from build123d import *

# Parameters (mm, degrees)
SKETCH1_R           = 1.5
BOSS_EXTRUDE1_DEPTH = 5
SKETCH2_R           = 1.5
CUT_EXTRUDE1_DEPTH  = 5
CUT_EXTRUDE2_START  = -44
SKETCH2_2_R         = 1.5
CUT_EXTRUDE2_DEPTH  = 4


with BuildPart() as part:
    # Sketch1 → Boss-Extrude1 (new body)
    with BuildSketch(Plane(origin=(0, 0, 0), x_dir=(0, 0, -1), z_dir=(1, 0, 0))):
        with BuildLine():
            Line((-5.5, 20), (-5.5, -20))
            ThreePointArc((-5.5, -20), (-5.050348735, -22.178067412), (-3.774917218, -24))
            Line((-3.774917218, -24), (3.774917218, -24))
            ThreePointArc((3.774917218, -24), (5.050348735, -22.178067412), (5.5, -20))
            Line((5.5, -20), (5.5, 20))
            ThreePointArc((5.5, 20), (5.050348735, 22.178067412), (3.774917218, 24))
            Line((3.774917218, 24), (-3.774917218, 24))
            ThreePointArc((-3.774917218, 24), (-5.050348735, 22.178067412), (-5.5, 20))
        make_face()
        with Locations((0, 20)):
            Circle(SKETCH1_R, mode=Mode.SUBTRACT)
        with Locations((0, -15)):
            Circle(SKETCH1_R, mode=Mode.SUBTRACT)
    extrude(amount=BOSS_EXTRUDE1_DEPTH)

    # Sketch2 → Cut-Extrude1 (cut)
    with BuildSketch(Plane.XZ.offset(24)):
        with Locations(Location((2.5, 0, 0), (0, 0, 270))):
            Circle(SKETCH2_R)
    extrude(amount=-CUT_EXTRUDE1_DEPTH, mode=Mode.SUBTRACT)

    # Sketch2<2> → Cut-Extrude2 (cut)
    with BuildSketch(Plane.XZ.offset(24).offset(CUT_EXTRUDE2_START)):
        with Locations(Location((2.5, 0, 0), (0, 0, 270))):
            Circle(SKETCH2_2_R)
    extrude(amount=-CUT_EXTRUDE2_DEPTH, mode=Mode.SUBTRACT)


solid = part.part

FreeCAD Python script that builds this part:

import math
import FreeCAD as App
import Part
import Sketcher

doc = App.newDocument("Part")
body = doc.addObject("PartDesign::Body", "Body")

# Sketch on YZ plane
sketch1 = doc.addObject("Sketcher::SketchObject", "Sketch")
body.addObject(sketch1)
sketch1.AttachmentSupport = (doc.YZ_Plane, [""])
sketch1.MapMode = "FlatFace"
sketch1.addGeometry([
    Part.LineSegment(App.Vector(20, 5.5, 0), App.Vector(-20, 5.5, 0)),  # 0
    Part.ArcOfCircle(Part.Circle(App.Vector(-20, 0, 0), App.Vector(0, 0, 1), 5.5), math.radians(90), math.radians(137)),  # 1
    Part.LineSegment(App.Vector(-24, 3.8, 0), App.Vector(-24, -3.8, 0)),  # 2
    Part.ArcOfCircle(Part.Circle(App.Vector(-20, 0, 0), App.Vector(0, 0, 1), 5.5), math.radians(-137), math.radians(-90)),  # 3
    Part.LineSegment(App.Vector(-20, -5.5, 0), App.Vector(20, -5.5, 0)),  # 4
    Part.ArcOfCircle(Part.Circle(App.Vector(20, 0, 0), App.Vector(0, 0, 1), 5.5), math.radians(-90), math.radians(-43)),  # 5
    Part.LineSegment(App.Vector(24, -3.8, 0), App.Vector(24, 3.8, 0)),  # 6
    Part.ArcOfCircle(Part.Circle(App.Vector(20, 0, 0), App.Vector(0, 0, 1), 5.5), math.radians(43), math.radians(90)),  # 7
    Part.Circle(App.Vector(-15, 0, 0), App.Vector(0, 0, 1), 1.5),  # 8
    Part.Circle(App.Vector(20, 0, 0), App.Vector(0, 0, 1), 1.5),  # 9
], False)
sketch1.addConstraint([
    Sketcher.Constraint("Tangent", 0, 2, 1, 1),
    Sketcher.Constraint("Coincident", 1, 2, 2, 1),
    Sketcher.Constraint("Coincident", 2, 2, 3, 1),
    Sketcher.Constraint("Tangent", 3, 2, 4, 1),
    Sketcher.Constraint("Tangent", 4, 2, 5, 1),
    Sketcher.Constraint("Coincident", 5, 2, 6, 1),
    Sketcher.Constraint("Coincident", 6, 2, 7, 1),
    Sketcher.Constraint("Tangent", 7, 2, 0, 1),
    Sketcher.Constraint("Horizontal", 0),
    Sketcher.Constraint("Vertical", 2),
    Sketcher.Constraint("Horizontal", 4),
    Sketcher.Constraint("Vertical", 6),
    Sketcher.Constraint("Coincident", 3, 3, 1, 3),
    Sketcher.Constraint("Coincident", 7, 3, 5, 3),
    Sketcher.Constraint("Coincident", 9, 3, 5, 3),
    Sketcher.Constraint("Equal", 1, 3),
    Sketcher.Constraint("Equal", 3, 5),
    Sketcher.Constraint("Equal", 8, 9),
    Sketcher.Constraint("Symmetric", 1, 3, 5, 3, -1, 1),
    Sketcher.Constraint("PointOnObject", 8, 3, -1),
    Sketcher.Constraint("Horizontal", 2, 2, 5, 2),
    Sketcher.Constraint("Diameter", 8, 3.0),
    Sketcher.Constraint("Radius", 1, 5.5),
    Sketcher.Constraint("DistanceX", 0, 2, 0, 1, 40.0),
    Sketcher.Constraint("DistanceX", 8, 3, -1, 1, 15.0),
    Sketcher.Constraint("DistanceX", 1, 2, -1, 1, 24.0),
])
pad1 = doc.addObject("PartDesign::Pad", "Pad")
body.addObject(pad1)
pad1.Profile = sketch1
pad1.Length = 5

# Sketch on XZ plane
sketch2 = doc.addObject("Sketcher::SketchObject", "Sketch001")
body.addObject(sketch2)
sketch2.AttachmentSupport = (doc.XZ_Plane, [""])
sketch2.MapMode = "FlatFace"
sketch2.AttachmentOffset = App.Placement(App.Vector(0, 0, 24), App.Rotation())
sketch2.addGeometry(Part.Circle(App.Vector(2.5, 0, 0), App.Vector(0, 0, 1), 1.5), False)
sketch2.addConstraint([
    Sketcher.Constraint("PointOnObject", 0, 3, -1),
    Sketcher.Constraint("Diameter", 0, 3.0),
    Sketcher.Constraint("DistanceX", -1, 1, 0, 3, 2.5),
])
pocket1 = doc.addObject("PartDesign::Pocket", "Pocket")
body.addObject(pocket1)
pocket1.Profile = sketch2
pocket1.Length = 5

# Sketch on XZ plane
sketch3 = doc.addObject("Sketcher::SketchObject", "Sketch002")
body.addObject(sketch3)
sketch3.AttachmentSupport = (doc.XZ_Plane, [""])
sketch3.MapMode = "FlatFace"
sketch3.AttachmentOffset = App.Placement(App.Vector(0, 0, -20), App.Rotation())
sketch3.addGeometry(Part.Circle(App.Vector(2.5, 0, 0), App.Vector(0, 0, 1), 1.5), False)
sketch3.addConstraint([
    Sketcher.Constraint("PointOnObject", 0, 3, -1),
    Sketcher.Constraint("Diameter", 0, 3.0),
    Sketcher.Constraint("DistanceX", -1, 1, 0, 3, 2.5),
])
pocket2 = doc.addObject("PartDesign::Pocket", "Pocket001")
body.addObject(pocket2)
pocket2.Profile = sketch3
pocket2.Length = 4

doc.recompute()
